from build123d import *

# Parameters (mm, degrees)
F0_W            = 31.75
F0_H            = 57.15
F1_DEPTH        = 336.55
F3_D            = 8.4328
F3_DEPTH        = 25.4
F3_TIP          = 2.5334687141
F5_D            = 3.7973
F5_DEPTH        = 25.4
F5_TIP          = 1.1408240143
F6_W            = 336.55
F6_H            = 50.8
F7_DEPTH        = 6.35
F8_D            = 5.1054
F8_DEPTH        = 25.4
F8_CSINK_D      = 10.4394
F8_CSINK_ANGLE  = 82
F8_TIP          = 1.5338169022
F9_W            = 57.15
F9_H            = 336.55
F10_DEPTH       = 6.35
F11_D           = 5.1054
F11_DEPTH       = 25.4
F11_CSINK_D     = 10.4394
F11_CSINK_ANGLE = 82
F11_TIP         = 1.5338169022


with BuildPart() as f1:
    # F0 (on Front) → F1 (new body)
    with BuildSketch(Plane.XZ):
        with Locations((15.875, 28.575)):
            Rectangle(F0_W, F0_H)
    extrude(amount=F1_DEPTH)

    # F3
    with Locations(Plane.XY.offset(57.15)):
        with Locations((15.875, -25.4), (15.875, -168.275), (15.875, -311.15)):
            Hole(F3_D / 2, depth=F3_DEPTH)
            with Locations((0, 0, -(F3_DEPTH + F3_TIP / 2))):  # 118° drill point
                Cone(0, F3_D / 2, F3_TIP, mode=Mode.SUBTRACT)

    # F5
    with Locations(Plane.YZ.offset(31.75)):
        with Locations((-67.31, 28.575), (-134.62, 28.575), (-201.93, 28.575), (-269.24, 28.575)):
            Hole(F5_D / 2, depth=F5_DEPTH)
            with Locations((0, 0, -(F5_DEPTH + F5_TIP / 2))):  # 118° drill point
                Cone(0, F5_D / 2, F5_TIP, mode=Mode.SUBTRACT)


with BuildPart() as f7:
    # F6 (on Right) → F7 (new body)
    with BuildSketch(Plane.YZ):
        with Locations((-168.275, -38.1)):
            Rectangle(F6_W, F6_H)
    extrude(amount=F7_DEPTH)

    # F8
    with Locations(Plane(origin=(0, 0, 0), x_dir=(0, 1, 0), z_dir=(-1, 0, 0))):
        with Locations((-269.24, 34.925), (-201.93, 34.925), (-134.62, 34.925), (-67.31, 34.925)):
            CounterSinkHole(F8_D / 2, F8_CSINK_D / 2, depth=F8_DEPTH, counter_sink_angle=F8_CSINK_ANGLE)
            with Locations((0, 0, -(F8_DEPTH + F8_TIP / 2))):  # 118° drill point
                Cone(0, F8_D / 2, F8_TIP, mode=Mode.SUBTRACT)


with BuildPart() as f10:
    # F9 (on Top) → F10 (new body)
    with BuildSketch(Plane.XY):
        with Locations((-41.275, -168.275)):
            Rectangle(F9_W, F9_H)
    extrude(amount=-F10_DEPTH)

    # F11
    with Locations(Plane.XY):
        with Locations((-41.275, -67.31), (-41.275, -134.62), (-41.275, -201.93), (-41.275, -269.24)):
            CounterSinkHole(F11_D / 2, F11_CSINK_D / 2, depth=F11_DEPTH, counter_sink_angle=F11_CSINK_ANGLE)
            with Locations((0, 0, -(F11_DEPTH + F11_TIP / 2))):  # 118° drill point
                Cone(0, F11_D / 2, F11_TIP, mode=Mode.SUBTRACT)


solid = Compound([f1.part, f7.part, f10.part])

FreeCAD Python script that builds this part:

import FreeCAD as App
import Part
import Sketcher
Q = App.Units.Quantity

doc = App.newDocument("Part")
body = doc.addObject("PartDesign::Body", "Body")

# Sketch on XZ plane
sketch1 = body.newObject("Sketcher::SketchObject", "Sketch")
sketch1.AttachmentSupport = (doc.getObject("XZ_Plane"), [""])
sketch1.MapMode = "FlatFace"
sketch1.addGeometry([
    Part.LineSegment(App.Vector(0, 57, 0), App.Vector(0, 0, 0)),
    Part.LineSegment(App.Vector(0, 0, 0), App.Vector(32, 0, 0)),
    Part.LineSegment(App.Vector(32, 0, 0), App.Vector(32, 57, 0)),
    Part.LineSegment(App.Vector(32, 57, 0), App.Vector(0, 57, 0)),
], False)
sketch1.addConstraint([
    Sketcher.Constraint("Coincident", 0, 2, 1, 1),
    Sketcher.Constraint("Coincident", 1, 2, 2, 1),
    Sketcher.Constraint("Coincident", 2, 2, 3, 1),
    Sketcher.Constraint("Coincident", 3, 2, 0, 1),
    Sketcher.Constraint("Vertical", 0),
    Sketcher.Constraint("Horizontal", 1),
    Sketcher.Constraint("Vertical", 2),
    Sketcher.Constraint("Horizontal", 3),
    Sketcher.Constraint("Coincident", 0, 2, -1, 1),
    Sketcher.Constraint("DistanceX", 1, 1, 1, 2, Q("1.25 in")),
    Sketcher.Constraint("DistanceY", 0, 2, 0, 1, Q("2.25 in")),
])
pad1 = body.newObject("PartDesign::Pad", "Pad")
pad1.Profile = sketch1
pad1.Length = Q("13.25 in")

# Sketch on XY plane
sketch2 = body.newObject("Sketcher::SketchObject", "Sketch001")
sketch2.AttachmentSupport = (doc.getObject("XY_Plane"), [""])
sketch2.MapMode = "FlatFace"
sketch2.AttachmentOffset = App.Placement(App.Vector(0, 0, 2.25 * 25.4), App.Rotation())
sketch2.addGeometry([
    Part.Circle(App.Vector(15.9, -25.4, 0), App.Vector(0, 0, 1), 4.2),
    Part.Circle(App.Vector(15.9, -168.3, 0), App.Vector(0, 0, 1), 4.2),
    Part.Circle(App.Vector(15.9, -311.1, 0), App.Vector(0, 0, 1), 4.2),
], False)
sketch2.addConstraint([
    Sketcher.Constraint("Equal", 0, 1),
    Sketcher.Constraint("Equal", 1, 2),
    Sketcher.Constraint("Vertical", 0, 3, 1, 3),
    Sketcher.Constraint("Vertical", 1, 3, 2, 3),
    Sketcher.Constraint("Diameter", 0, Q("0.332 in")),
    Sketcher.Constraint("DistanceY", 0, 3, -1, 1, Q("1 in")),
    Sketcher.Constraint("DistanceY", 2, 3, -1, 1, Q("12.25 in")),
    Sketcher.Constraint("DistanceX", -1, 1, 0, 3, Q("0.625 in")),
    Sketcher.Constraint("DistanceY", 1, 3, -1, 1, Q("6.625 in")),
])
doc.recompute()
hole = body.newObject("PartDesign::Hole", "Hole")
hole.Profile = sketch2
hole.ThreadType = "None"
hole.Diameter = Q("0.332 in")
hole.DepthType = "Dimension"
hole.Depth = Q("1 in")
hole.DrillPoint = "Angled"
hole.DrillPointAngle = 118

# Sketch on YZ plane
sketch3 = body.newObject("Sketcher::SketchObject", "Sketch002")
sketch3.AttachmentSupport = (doc.getObject("YZ_Plane"), [""])
sketch3.MapMode = "FlatFace"
sketch3.AttachmentOffset = App.Placement(App.Vector(0, 0, 1.25 * 25.4), App.Rotation())
sketch3.addGeometry([
    Part.Circle(App.Vector(-67.3, 28.6, 0), App.Vector(0, 0, 1), 1.9),
    Part.Circle(App.Vector(-134.6, 28.6, 0), App.Vector(0, 0, 1), 1.9),
    Part.Circle(App.Vector(-201.9, 28.6, 0), App.Vector(0, 0, 1), 1.9),
    Part.Circle(App.Vector(-269.2, 28.6, 0), App.Vector(0, 0, 1), 1.9),
], False)
sketch3.addConstraint([
    Sketcher.Constraint("Equal", 0, 1),
    Sketcher.Constraint("Equal", 1, 2),
    Sketcher.Constraint("Equal", 2, 3),
    Sketcher.Constraint("Horizontal", 0, 3, 1, 3),
    Sketcher.Constraint("Horizontal", 1, 3, 2, 3),
    Sketcher.Constraint("Horizontal", 2, 3, 3, 3),
    Sketcher.Constraint("Diameter", 0, Q("0.1495 in")),
    Sketcher.Constraint("DistanceX", 1, 3, -1, 1, Q("5.3 in")),
    Sketcher.Constraint("DistanceX", 3, 3, -1, 1, Q("10.6 in")),
    Sketcher.Constraint("DistanceX", 2, 3, 0, 3, Q("5.3 in")),
    Sketcher.Constraint("DistanceX", 0, 3, -1, 1, Q("2.65 in")),
    Sketcher.Constraint("DistanceY", -1, 1, 0, 3, Q("1.125 in")),
])
doc.recompute()
hole2 = body.newObject("PartDesign::Hole", "Hole001")
hole2.Profile = sketch3
hole2.ThreadType = "None"
hole2.Diameter = Q("0.1495 in")
hole2.DepthType = "Dimension"
hole2.Depth = Q("1 in")
hole2.DrillPoint = "Angled"
hole2.DrillPointAngle = 118
body2 = doc.addObject("PartDesign::Body", "Body001")

# Sketch on YZ plane
sketch4 = body2.newObject("Sketcher::SketchObject", "Sketch003")
sketch4.AttachmentSupport = (doc.getObject("YZ_Plane001"), [""])
sketch4.MapMode = "FlatFace"
sketch4.addGeometry([
    Part.LineSegment(App.Vector(-337, -13, 0), App.Vector(-337, -64, 0)),
    Part.LineSegment(App.Vector(-337, -64, 0), App.Vector(0, -64, 0)),
    Part.LineSegment(App.Vector(0, -64, 0), App.Vector(0, -13, 0)),
    Part.LineSegment(App.Vector(0, -13, 0), App.Vector(-337, -13, 0)),
], False)
sketch4.addConstraint([
    Sketcher.Constraint("Coincident", 0, 2, 1, 1),
    Sketcher.Constraint("Coincident", 1, 2, 2, 1),
    Sketcher.Constraint("Coincident", 2, 2, 3, 1),
    Sketcher.Constraint("Coincident", 3, 2, 0, 1),
    Sketcher.Constraint("Vertical", 0),
    Sketcher.Constraint("Horizontal", 1),
    Sketcher.Constraint("Vertical", 2),
    Sketcher.Constraint("Horizontal", 3),
    Sketcher.Constraint("PointOnObject", 1, 2, -2),
    Sketcher.Constraint("DistanceY", 0, 2, 0, 1, Q("2 in")),
    Sketcher.Constraint("DistanceX", 1, 1, 1, 2, Q("13.25 in")),
    Sketcher.Constraint("DistanceY", 0, 2, -1, 1, Q("2.5 in")),
])
pad2 = body2.newObject("PartDesign::Pad", "Pad001")
pad2.Profile = sketch4
pad2.Length = Q("0.25 in")

# Sketch on YZ plane
sketch5 = body2.newObject("Sketcher::SketchObject", "Sketch004")
sketch5.AttachmentSupport = (doc.getObject("YZ_Plane001"), [""])
sketch5.MapMode = "FlatFace"
sketch5.addGeometry([
    Part.Circle(App.Vector(-269.2, -34.9, 0), App.Vector(0, 0, 1), 2.6),
    Part.Circle(App.Vector(-201.9, -34.9, 0), App.Vector(0, 0, 1), 2.6),
    Part.Circle(App.Vector(-134.6, -34.9, 0), App.Vector(0, 0, 1), 2.6),
    Part.Circle(App.Vector(-67.3, -34.9, 0), App.Vector(0, 0, 1), 2.6),
], False)
sketch5.addConstraint([
    Sketcher.Constraint("Equal", 0, 1),
    Sketcher.Constraint("Equal", 1, 2),
    Sketcher.Constraint("Equal", 2, 3),
    Sketcher.Constraint("Horizontal", 0, 3, 1, 3),
    Sketcher.Constraint("Horizontal", 1, 3, 2, 3),
    Sketcher.Constraint("Horizontal", 2, 3, 3, 3),
    Sketcher.Constraint("Diameter", 0, Q("0.201 in")),
    Sketcher.Constraint("DistanceX", 0, 3, -1, 1, Q("10.6 in")),
    Sketcher.Constraint("DistanceX", 2, 3, -1, 1, Q("5.3 in")),
    Sketcher.Constraint("DistanceX", 1, 3, 3, 3, Q("5.3 in")),
    Sketcher.Constraint("DistanceX", 1, 3, -1, 1, Q("7.95 in")),
    Sketcher.Constraint("DistanceY", 0, 3, -1, 1, Q("1.375 in")),
])
doc.recompute()
hole3 = body2.newObject("PartDesign::Hole", "Hole002")
hole3.Profile = sketch5
hole3.ThreadType = "None"
hole3.Diameter = Q("0.201 in")
hole3.DepthType = "Dimension"
hole3.Depth = Q("1 in")
hole3.DrillPoint = "Angled"
hole3.DrillPointAngle = 118
hole3.HoleCutType = "Countersink"
hole3.HoleCutDiameter = Q("0.411 in")
hole3.HoleCutCountersinkAngle = 82
hole3.Reversed = True
body3 = doc.addObject("PartDesign::Body", "Body002")

# Sketch on XY plane
sketch6 = body3.newObject("Sketcher::SketchObject", "Sketch005")
sketch6.AttachmentSupport = (doc.getObject("XY_Plane002"), [""])
sketch6.MapMode = "FlatFace"
sketch6.addGeometry([
    Part.LineSegment(App.Vector(-70, 0, 0), App.Vector(-70, -337, 0)),
    Part.LineSegment(App.Vector(-70, -337, 0), App.Vector(-13, -337, 0)),
    Part.LineSegment(App.Vector(-13, -337, 0), App.Vector(-13, 0, 0)),
    Part.LineSegment(App.Vector(-13, 0, 0), App.Vector(-70, 0, 0)),
], False)
sketch6.addConstraint([
    Sketcher.Constraint("Coincident", 0, 2, 1, 1),
    Sketcher.Constraint("Coincident", 1, 2, 2, 1),
    Sketcher.Constraint("Coincident", 2, 2, 3, 1),
    Sketcher.Constraint("Coincident", 3, 2, 0, 1),
    Sketcher.Constraint("Vertical", 0),
    Sketcher.Constraint("Horizontal", 1),
    Sketcher.Constraint("Vertical", 2),
    Sketcher.Constraint("Horizontal", 3),
    Sketcher.Constraint("PointOnObject", 2, 2, -1),
    Sketcher.Constraint("DistanceX", 1, 1, 1, 2, Q("2.25 in")),
    Sketcher.Constraint("DistanceY", 0, 2, 0, 1, Q("13.25 in")),
    Sketcher.Constraint("DistanceX", 1, 2, -1, 1, Q("0.5 in")),
])
pad3 = body3.newObject("PartDesign::Pad", "Pad002")
pad3.Profile = sketch6
pad3.Length = Q("0.25 in")
pad3.Reversed = True

# Sketch on XY plane
sketch7 = body3.newObject("Sketcher::SketchObject", "Sketch006")
sketch7.AttachmentSupport = (doc.getObject("XY_Plane002"), [""])
sketch7.MapMode = "FlatFace"
sketch7.addGeometry([
    Part.Circle(App.Vector(-41.3, -67.3, 0), App.Vector(0, 0, 1), 2.6),
    Part.Circle(App.Vector(-41.3, -134.6, 0), App.Vector(0, 0, 1), 2.6),
    Part.Circle(App.Vector(-41.3, -201.9, 0), App.Vector(0, 0, 1), 2.6),
    Part.Circle(App.Vector(-41.3, -269.2, 0), App.Vector(0, 0, 1), 2.6),
], False)
sketch7.addConstraint([
    Sketcher.Constraint("Equal", 0, 1),
    Sketcher.Constraint("Equal", 1, 2),
    Sketcher.Constraint("Equal", 2, 3),
    Sketcher.Constraint("Vertical", 0, 3, 1, 3),
    Sketcher.Constraint("Vertical", 1, 3, 2, 3),
    Sketcher.Constraint("Vertical", 2, 3, 3, 3),
    Sketcher.Constraint("Diameter", 0, Q("0.201 in")),
    Sketcher.Constraint("DistanceY", 1, 3, -1, 1, Q("5.3 in")),
    Sketcher.Constraint("DistanceY", 3, 3, -1, 1, Q("10.6 in")),
    Sketcher.Constraint("DistanceY", 2, 3, 0, 3, Q("5.3 in")),
    Sketcher.Constraint("DistanceY", 0, 3, -1, 1, Q("2.65 in")),
    Sketcher.Constraint("DistanceX", 0, 3, -1, 1, Q("1.625 in")),
])
doc.recompute()
hole4 = body3.newObject("PartDesign::Hole", "Hole003")
hole4.Profile = sketch7
hole4.ThreadType = "None"
hole4.Diameter = Q("0.201 in")
hole4.DepthType = "Dimension"
hole4.Depth = Q("1 in")
hole4.DrillPoint = "Angled"
hole4.DrillPointAngle = 118
hole4.HoleCutType = "Countersink"
hole4.HoleCutDiameter = Q("0.411 in")
hole4.HoleCutCountersinkAngle = 82

doc.recompute()
